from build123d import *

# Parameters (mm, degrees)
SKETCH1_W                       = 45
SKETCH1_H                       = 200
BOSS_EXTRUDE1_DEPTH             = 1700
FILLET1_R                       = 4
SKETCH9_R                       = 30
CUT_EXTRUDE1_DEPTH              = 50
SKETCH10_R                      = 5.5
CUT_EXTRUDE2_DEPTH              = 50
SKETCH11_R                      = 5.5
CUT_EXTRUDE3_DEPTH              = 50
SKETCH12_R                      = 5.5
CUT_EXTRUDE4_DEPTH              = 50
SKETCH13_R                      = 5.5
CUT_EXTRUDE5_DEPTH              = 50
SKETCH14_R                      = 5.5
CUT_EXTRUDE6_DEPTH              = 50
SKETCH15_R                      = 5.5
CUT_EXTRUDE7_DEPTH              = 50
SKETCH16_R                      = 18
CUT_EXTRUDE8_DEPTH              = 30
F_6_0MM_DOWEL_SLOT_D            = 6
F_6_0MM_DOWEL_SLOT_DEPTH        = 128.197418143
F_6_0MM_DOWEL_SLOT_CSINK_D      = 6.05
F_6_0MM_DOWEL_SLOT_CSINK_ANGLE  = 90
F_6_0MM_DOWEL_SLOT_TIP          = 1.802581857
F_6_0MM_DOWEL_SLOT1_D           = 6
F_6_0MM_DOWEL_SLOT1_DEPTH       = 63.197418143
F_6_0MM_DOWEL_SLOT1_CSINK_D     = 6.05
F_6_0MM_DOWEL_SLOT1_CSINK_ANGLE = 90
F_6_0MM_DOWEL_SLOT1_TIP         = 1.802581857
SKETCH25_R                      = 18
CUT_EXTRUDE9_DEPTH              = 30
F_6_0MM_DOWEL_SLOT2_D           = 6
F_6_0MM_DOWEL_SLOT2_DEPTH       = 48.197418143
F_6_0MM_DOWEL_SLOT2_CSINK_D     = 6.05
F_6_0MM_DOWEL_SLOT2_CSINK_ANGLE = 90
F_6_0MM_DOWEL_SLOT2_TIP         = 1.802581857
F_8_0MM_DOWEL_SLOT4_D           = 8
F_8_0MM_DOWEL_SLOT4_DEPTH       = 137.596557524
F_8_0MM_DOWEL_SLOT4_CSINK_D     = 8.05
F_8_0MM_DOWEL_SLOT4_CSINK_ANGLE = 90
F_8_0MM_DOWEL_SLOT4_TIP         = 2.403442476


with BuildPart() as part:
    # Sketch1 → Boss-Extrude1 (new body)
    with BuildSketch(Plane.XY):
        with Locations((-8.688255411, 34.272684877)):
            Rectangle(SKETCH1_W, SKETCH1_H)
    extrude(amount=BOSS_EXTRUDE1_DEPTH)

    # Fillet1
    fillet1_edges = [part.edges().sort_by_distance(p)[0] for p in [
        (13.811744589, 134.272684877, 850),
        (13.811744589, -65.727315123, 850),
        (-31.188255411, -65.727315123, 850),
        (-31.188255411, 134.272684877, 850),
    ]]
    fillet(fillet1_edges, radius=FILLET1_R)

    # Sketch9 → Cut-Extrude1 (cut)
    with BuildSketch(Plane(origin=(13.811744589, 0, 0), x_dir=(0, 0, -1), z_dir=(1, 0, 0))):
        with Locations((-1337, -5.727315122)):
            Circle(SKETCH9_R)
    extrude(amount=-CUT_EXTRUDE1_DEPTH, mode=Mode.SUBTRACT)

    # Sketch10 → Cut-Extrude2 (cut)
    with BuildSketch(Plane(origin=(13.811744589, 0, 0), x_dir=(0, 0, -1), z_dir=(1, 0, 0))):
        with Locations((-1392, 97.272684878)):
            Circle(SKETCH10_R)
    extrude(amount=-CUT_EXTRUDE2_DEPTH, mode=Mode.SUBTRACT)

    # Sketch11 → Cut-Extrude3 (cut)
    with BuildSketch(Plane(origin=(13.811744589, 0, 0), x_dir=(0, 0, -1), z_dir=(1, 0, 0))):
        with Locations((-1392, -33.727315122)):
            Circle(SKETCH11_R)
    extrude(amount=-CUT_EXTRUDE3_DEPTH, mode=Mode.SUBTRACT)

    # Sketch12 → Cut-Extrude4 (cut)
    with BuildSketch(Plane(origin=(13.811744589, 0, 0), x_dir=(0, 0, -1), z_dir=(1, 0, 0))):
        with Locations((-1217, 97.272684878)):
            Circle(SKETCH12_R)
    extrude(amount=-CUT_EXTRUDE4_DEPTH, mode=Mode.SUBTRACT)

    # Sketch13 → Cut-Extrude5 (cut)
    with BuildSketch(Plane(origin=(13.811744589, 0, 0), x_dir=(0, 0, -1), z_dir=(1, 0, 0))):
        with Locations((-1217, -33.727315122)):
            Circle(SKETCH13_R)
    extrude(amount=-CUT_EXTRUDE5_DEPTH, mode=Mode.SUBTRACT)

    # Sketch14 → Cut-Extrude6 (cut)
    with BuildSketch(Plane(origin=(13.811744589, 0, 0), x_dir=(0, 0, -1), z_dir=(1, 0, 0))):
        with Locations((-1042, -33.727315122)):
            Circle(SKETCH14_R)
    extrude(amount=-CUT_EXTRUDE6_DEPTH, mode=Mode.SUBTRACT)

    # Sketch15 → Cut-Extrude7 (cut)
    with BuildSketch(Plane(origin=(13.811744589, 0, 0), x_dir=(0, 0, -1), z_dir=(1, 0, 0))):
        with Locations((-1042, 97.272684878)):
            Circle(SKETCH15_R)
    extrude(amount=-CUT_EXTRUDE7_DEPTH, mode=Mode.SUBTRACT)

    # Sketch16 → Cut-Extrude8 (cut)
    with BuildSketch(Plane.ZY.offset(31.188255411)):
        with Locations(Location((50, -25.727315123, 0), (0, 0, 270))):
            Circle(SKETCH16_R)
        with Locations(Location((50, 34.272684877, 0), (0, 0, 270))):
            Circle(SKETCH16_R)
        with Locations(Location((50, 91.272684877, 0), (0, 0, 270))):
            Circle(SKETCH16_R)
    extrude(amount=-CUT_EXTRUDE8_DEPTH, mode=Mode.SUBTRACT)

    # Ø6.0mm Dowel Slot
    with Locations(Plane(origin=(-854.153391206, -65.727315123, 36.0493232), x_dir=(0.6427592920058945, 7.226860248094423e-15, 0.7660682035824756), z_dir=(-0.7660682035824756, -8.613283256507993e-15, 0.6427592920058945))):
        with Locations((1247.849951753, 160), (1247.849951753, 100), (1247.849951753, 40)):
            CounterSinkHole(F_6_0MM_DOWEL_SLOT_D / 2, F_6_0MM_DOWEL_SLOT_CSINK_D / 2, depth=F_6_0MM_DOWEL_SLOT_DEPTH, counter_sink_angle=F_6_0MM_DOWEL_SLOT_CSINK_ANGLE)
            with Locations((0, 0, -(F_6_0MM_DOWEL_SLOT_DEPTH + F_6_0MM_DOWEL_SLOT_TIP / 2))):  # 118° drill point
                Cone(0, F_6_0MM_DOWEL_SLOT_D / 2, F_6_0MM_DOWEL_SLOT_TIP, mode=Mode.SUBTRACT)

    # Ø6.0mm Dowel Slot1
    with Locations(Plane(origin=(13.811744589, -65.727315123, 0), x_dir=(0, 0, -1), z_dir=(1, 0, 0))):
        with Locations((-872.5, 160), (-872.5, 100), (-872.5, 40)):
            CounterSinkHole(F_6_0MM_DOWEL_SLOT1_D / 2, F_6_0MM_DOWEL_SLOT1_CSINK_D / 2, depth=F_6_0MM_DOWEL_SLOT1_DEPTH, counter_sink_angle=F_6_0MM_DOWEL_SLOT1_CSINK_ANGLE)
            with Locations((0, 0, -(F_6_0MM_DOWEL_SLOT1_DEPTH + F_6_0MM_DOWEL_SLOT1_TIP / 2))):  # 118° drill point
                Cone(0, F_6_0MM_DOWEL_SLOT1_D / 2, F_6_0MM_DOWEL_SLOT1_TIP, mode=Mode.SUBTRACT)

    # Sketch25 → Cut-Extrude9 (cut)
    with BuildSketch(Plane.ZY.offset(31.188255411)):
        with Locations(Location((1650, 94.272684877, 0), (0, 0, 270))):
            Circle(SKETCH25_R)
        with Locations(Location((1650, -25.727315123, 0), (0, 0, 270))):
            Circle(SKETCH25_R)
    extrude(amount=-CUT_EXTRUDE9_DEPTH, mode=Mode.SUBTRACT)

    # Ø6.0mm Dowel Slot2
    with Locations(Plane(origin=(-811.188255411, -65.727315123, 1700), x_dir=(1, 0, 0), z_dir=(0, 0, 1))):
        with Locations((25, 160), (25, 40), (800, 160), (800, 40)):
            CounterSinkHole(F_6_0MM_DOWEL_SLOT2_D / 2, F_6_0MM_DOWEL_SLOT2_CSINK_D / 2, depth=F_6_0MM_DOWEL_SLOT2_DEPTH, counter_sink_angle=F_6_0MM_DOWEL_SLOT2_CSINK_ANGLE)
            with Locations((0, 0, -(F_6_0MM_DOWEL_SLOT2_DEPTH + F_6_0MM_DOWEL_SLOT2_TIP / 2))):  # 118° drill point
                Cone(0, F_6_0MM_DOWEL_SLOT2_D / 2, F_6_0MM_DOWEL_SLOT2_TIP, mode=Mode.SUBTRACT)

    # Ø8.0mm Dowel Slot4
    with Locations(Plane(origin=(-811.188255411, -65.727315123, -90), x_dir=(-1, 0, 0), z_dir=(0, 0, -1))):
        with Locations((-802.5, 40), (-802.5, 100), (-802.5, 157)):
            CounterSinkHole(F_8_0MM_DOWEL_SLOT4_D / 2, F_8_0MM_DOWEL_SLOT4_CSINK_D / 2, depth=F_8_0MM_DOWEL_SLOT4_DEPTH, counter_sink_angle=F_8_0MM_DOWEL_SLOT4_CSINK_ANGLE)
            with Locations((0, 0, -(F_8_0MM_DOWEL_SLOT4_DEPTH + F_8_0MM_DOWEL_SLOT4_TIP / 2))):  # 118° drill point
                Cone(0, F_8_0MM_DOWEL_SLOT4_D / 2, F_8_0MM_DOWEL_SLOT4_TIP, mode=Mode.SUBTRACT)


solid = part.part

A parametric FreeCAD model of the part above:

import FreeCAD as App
import Part
import Sketcher
from FreeCAD import Vector
Q = App.Units.Quantity


def edges_at(feature, points):
    """Names of the edges that pass closest to the given points."""
    edges = feature.Shape.Edges
    near = lambda p: min(range(len(edges)), key=lambda i: edges[i].distToShape(Part.Vertex(*p))[0])
    return sorted({f"Edge{near(p) + 1}" for p in points})


def add_polygon(sketch, points):
    """Adds a closed chain of lines whose ends are joined by coincident constraints."""
    first, n = sketch.GeometryCount, len(points)
    for a, b in zip(points, points[1:] + points[:1]):
        sketch.addGeometry(Part.LineSegment(App.Vector(*a, 0), App.Vector(*b, 0)), False)
    for i in range(n):
        sketch.addConstraint(Sketcher.Constraint("Coincident", first + i, 2, first + (i + 1) % n, 1))

doc = App.newDocument("Part")
params = doc.addObject("Spreadsheet::Sheet", "Params")
for row, (alias, value) in enumerate([
    ("sketch1_width", "45 mm"),
    ("sketch1_height", "200 mm"),
    ("pad1_length", "1700 mm"),
    ("fillet_radius", "4 mm"),
    ("sketch2_diameter", "60 mm"),
    ("pocket1_length", "50 mm"),
    ("sketch3_diameter", "11 mm"),
    ("pocket2_length", "50 mm"),
    ("sketch4_diameter", "11 mm"),
    ("pocket3_length", "50 mm"),
    ("sketch5_diameter", "11 mm"),
    ("pocket4_length", "50 mm"),
    ("sketch6_diameter", "11 mm"),
    ("pocket5_length", "50 mm"),
    ("sketch7_diameter", "11 mm"),
    ("pocket6_length", "50 mm"),
    ("sketch8_diameter", "11 mm"),
    ("pocket7_length", "50 mm"),
    ("sketch9_diameter", "36 mm"),
    ("pocket8_length", "30 mm"),
    ("sketch10_diameter", "6 mm"),
    ("hole_diameter", "6 mm"),
    ("hole_depth", "128.197418 mm"),
    ("hole_csink_diameter", "6.05 mm"),
    ("sketch11_diameter", "6 mm"),
    ("hole2_diameter", "6 mm"),
    ("hole2_depth", "63.197418 mm"),
    ("hole2_csink_diameter", "6.05 mm"),
    ("sketch12_diameter", "36 mm"),
    ("pocket9_length", "30 mm"),
    ("sketch13_diameter", "6 mm"),
    ("hole3_diameter", "6 mm"),
    ("hole3_depth", "48.197418 mm"),
    ("hole3_csink_diameter", "6.05 mm"),
    ("sketch14_diameter", "8 mm"),
    ("hole4_diameter", "8 mm"),
    ("hole4_depth", "137.596558 mm"),
    ("hole4_csink_diameter", "8.05 mm"),
], start=1):
    params.set(f"A{row}", alias)
    params.set(f"B{row}", "=" + value)
    params.setAlias(f"B{row}", alias)

body = doc.addObject("PartDesign::Body", "Body")

sketch1 = body.newObject("Sketcher::SketchObject", "Sketch")
sketch1.AttachmentSupport = (doc.getObject("XY_Plane"), [""])
sketch1.MapMode = "FlatFace"
add_polygon(sketch1, [(-31, 134), (-31, -66), (14, -66), (14, 134)])
sketch1.addConstraint([
    Sketcher.Constraint("Vertical", 0),
    Sketcher.Constraint("Horizontal", 1),
    Sketcher.Constraint("Vertical", 2),
    Sketcher.Constraint("Horizontal", 3),
    Sketcher.Constraint("DistanceX", 1, 1, 1, 2, Q("45 mm")),
    Sketcher.Constraint("DistanceY", 0, 2, 0, 1, Q("200 mm")),
    Sketcher.Constraint("DistanceX", 0, 2, -1, 1, Q("31.188255 mm")),
    Sketcher.Constraint("DistanceY", 0, 2, -1, 1, Q("65.727315 mm")),
])
sketch1.setExpression("Constraints[8]", "Params.sketch1_width")
sketch1.setExpression("Constraints[9]", "Params.sketch1_height")
pad1 = body.newObject("PartDesign::Pad", "Pad")
pad1.Profile = sketch1
pad1.setExpression("Length", "Params.pad1_length")
doc.recompute()

fillet = body.newObject("PartDesign::Fillet", "Fillet")
fillet.Base = (pad1, edges_at(pad1, [
    (13.812, 134.273, 850),
    (13.812, -65.727, 850),
    (-31.188, -65.727, 850),
    (-31.188, 134.273, 850),
]))
fillet.setExpression("Radius", "Params.fillet_radius")

sketch2 = body.newObject("Sketcher::SketchObject", "Sketch001")
sketch2.AttachmentSupport = (doc.getObject("YZ_Plane"), [""])
sketch2.MapMode = "FlatFace"
sketch2.AttachmentOffset = App.Placement(Vector(0, 0, 13.811745), App.Rotation())
sketch2.addGeometry(Part.Circle(Vector(-6, 1337, 0), Vector(0, 0, 1), 30), False)
sketch2.addConstraint([
    Sketcher.Constraint("Diameter", 0, Q("60 mm")),
    Sketcher.Constraint("DistanceY", -1, 1, 0, 3, Q("1337 mm")),
    Sketcher.Constraint("DistanceX", 0, 3, -1, 1, Q("5.727315 mm")),
])
sketch2.setExpression("Constraints[0]", "Params.sketch2_diameter")
pocket1 = body.newObject("PartDesign::Pocket", "Pocket")
pocket1.Profile = sketch2
pocket1.setExpression("Length", "Params.pocket1_length")

sketch3 = body.newObject("Sketcher::SketchObject", "Sketch002")
sketch3.AttachmentSupport = (doc.getObject("YZ_Plane"), [""])
sketch3.MapMode = "FlatFace"
sketch3.AttachmentOffset = App.Placement(Vector(0, 0, 13.811745), App.Rotation())
sketch3.addGeometry(Part.Circle(Vector(97, 1392, 0), Vector(0, 0, 1), 6), False)
sketch3.addConstraint([
    Sketcher.Constraint("Diameter", 0, Q("11 mm")),
    Sketcher.Constraint("DistanceY", -1, 1, 0, 3, Q("1392 mm")),
    Sketcher.Constraint("DistanceX", -1, 1, 0, 3, Q("97.272685 mm")),
])
sketch3.setExpression("Constraints[0]", "Params.sketch3_diameter")
pocket2 = body.newObject("PartDesign::Pocket", "Pocket001")
pocket2.Profile = sketch3
pocket2.setExpression("Length", "Params.pocket2_length")

sketch4 = body.newObject("Sketcher::SketchObject", "Sketch003")
sketch4.AttachmentSupport = (doc.getObject("YZ_Plane"), [""])
sketch4.MapMode = "FlatFace"
sketch4.AttachmentOffset = App.Placement(Vector(0, 0, 13.811745), App.Rotation())
sketch4.addGeometry(Part.Circle(Vector(-34, 1392, 0), Vector(0, 0, 1), 6), False)
sketch4.addConstraint([
    Sketcher.Constraint("Diameter", 0, Q("11 mm")),
    Sketcher.Constraint("DistanceY", -1, 1, 0, 3, Q("1392 mm")),
    Sketcher.Constraint("DistanceX", 0, 3, -1, 1, Q("33.727315 mm")),
])
sketch4.setExpression("Constraints[0]", "Params.sketch4_diameter")
pocket3 = body.newObject("PartDesign::Pocket", "Pocket002")
pocket3.Profile = sketch4
pocket3.setExpression("Length", "Params.pocket3_length")

sketch5 = body.newObject("Sketcher::SketchObject", "Sketch004")
sketch5.AttachmentSupport = (doc.getObject("YZ_Plane"), [""])
sketch5.MapMode = "FlatFace"
sketch5.AttachmentOffset = App.Placement(Vector(0, 0, 13.811745), App.Rotation())
sketch5.addGeometry(Part.Circle(Vector(97, 1217, 0), Vector(0, 0, 1), 6), False)
sketch5.addConstraint([
    Sketcher.Constraint("Diameter", 0, Q("11 mm")),
    Sketcher.Constraint("DistanceY", -1, 1, 0, 3, Q("1217 mm")),
    Sketcher.Constraint("DistanceX", -1, 1, 0, 3, Q("97.272685 mm")),
])
sketch5.setExpression("Constraints[0]", "Params.sketch5_diameter")
pocket4 = body.newObject("PartDesign::Pocket", "Pocket003")
pocket4.Profile = sketch5
pocket4.setExpression("Length", "Params.pocket4_length")

sketch6 = body.newObject("Sketcher::SketchObject", "Sketch005")
sketch6.AttachmentSupport = (doc.getObject("YZ_Plane"), [""])
sketch6.MapMode = "FlatFace"
sketch6.AttachmentOffset = App.Placement(Vector(0, 0, 13.811745), App.Rotation())
sketch6.addGeometry(Part.Circle(Vector(-34, 1217, 0), Vector(0, 0, 1), 6), False)
sketch6.addConstraint([
    Sketcher.Constraint("Diameter", 0, Q("11 mm")),
    Sketcher.Constraint("DistanceY", -1, 1, 0, 3, Q("1217 mm")),
    Sketcher.Constraint("DistanceX", 0, 3, -1, 1, Q("33.727315 mm")),
])
sketch6.setExpression("Constraints[0]", "Params.sketch6_diameter")
pocket5 = body.newObject("PartDesign::Pocket", "Pocket004")
pocket5.Profile = sketch6
pocket5.setExpression("Length", "Params.pocket5_length")

sketch7 = body.newObject("Sketcher::SketchObject", "Sketch006")
sketch7.AttachmentSupport = (doc.getObject("YZ_Plane"), [""])
sketch7.MapMode = "FlatFace"
sketch7.AttachmentOffset = App.Placement(Vector(0, 0, 13.811745), App.Rotation())
sketch7.addGeometry(Part.Circle(Vector(-34, 1042, 0), Vector(0, 0, 1), 6), False)
sketch7.addConstraint([
    Sketcher.Constraint("Diameter", 0, Q("11 mm")),
    Sketcher.Constraint("DistanceY", -1, 1, 0, 3, Q("1042 mm")),
    Sketcher.Constraint("DistanceX", 0, 3, -1, 1, Q("33.727315 mm")),
])
sketch7.setExpression("Constraints[0]", "Params.sketch7_diameter")
pocket6 = body.newObject("PartDesign::Pocket", "Pocket005")
pocket6.Profile = sketch7
pocket6.setExpression("Length", "Params.pocket6_length")

sketch8 = body.newObject("Sketcher::SketchObject", "Sketch007")
sketch8.AttachmentSupport = (doc.getObject("YZ_Plane"), [""])
sketch8.MapMode = "FlatFace"
sketch8.AttachmentOffset = App.Placement(Vector(0, 0, 13.811745), App.Rotation())
sketch8.addGeometry(Part.Circle(Vector(97, 1042, 0), Vector(0, 0, 1), 6), False)
sketch8.addConstraint([
    Sketcher.Constraint("Diameter", 0, Q("11 mm")),
    Sketcher.Constraint("DistanceY", -1, 1, 0, 3, Q("1042 mm")),
    Sketcher.Constraint("DistanceX", -1, 1, 0, 3, Q("97.272685 mm")),
])
sketch8.setExpression("Constraints[0]", "Params.sketch8_diameter")
pocket7 = body.newObject("PartDesign::Pocket", "Pocket006")
pocket7.Profile = sketch8
pocket7.setExpression("Length", "Params.pocket7_length")

sketch9 = body.newObject("Sketcher::SketchObject", "Sketch008")
sketch9.AttachmentSupport = (doc.getObject("YZ_Plane"), [""])
sketch9.MapMode = "FlatFace"
sketch9.AttachmentOffset = App.Placement(Vector(0, 0, -31.188255), App.Rotation())
sketch9.addGeometry([
    Part.Circle(Vector(-26, 50, 0), Vector(0, 0, 1), 18),
    Part.Circle(Vector(34, 50, 0), Vector(0, 0, 1), 18),
    Part.Circle(Vector(91, 50, 0), Vector(0, 0, 1), 18),
], False)
sketch9.addConstraint([
    Sketcher.Constraint("Equal", 0, 1),
    Sketcher.Constraint("Equal", 1, 2),
    Sketcher.Constraint("Horizontal", 0, 3, 1, 3),
    Sketcher.Constraint("Horizontal", 1, 3, 2, 3),
    Sketcher.Constraint("Diameter", 0, Q("36 mm")),
    Sketcher.Constraint("DistanceY", -1, 1, 0, 3, Q("50 mm")),
    Sketcher.Constraint("DistanceX", 0, 3, 1, 3, Q("60 mm")),
    Sketcher.Constraint("DistanceX", 1, 3, 2, 3, Q("57 mm")),
    Sketcher.Constraint("DistanceX", 0, 3, -1, 1, Q("25.727315 mm")),
])
sketch9.setExpression("Constraints[4]", "Params.sketch9_diameter")
pocket8 = body.newObject("PartDesign::Pocket", "Pocket007")
pocket8.Profile = sketch9
pocket8.setExpression("Length", "Params.pocket8_length")
pocket8.Reversed = True

sketch10 = body.newObject("Sketcher::SketchObject", "Sketch009")
sketch10.Placement = App.Placement(Vector(-519.019475, 0, 435.476357), App.Rotation(Vector(0.642759292, 0, 0.766068204), Vector(0, 1.000000001, 0), Vector(-0.766068204, 0, 0.642759292), "ZXY"))
sketch10.addGeometry([
    Part.Circle(Vector(726.5, 94.3, 0), Vector(0, 0, 1), 3),
    Part.Circle(Vector(726.5, 34.3, 0), Vector(0, 0, 1), 3),
    Part.Circle(Vector(726.5, -25.7, 0), Vector(0, 0, 1), 3),
], False)
sketch10.addConstraint([
    Sketcher.Constraint("Equal", 0, 1),
    Sketcher.Constraint("Equal", 1, 2),
    Sketcher.Constraint("Vertical", 0, 3, 1, 3),
    Sketcher.Constraint("Vertical", 1, 3, 2, 3),
    Sketcher.Constraint("Diameter", 0, Q("6 mm")),
    Sketcher.Constraint("DistanceY", 1, 3, 0, 3, Q("60 mm")),
    Sketcher.Constraint("DistanceY", 2, 3, 1, 3, Q("60 mm")),
    Sketcher.Constraint("DistanceX", -1, 1, 0, 3, Q("726.451163 mm")),
    Sketcher.Constraint("DistanceY", -1, 1, 0, 3, Q("94.272685 mm")),
])
sketch10.setExpression("Constraints[4]", "Params.sketch10_diameter")
doc.recompute()
hole = body.newObject("PartDesign::Hole", "Hole")
hole.Profile = sketch10
hole.ThreadType = "None"
hole.setExpression("Diameter", "Params.hole_diameter")
hole.DepthType = "Dimension"
hole.setExpression("Depth", "Params.hole_depth")
hole.DrillPoint = "Angled"
hole.DrillPointAngle = 118
hole.HoleCutType = "Countersink"
hole.setExpression("HoleCutDiameter", "Params.hole_csink_diameter")
hole.HoleCutCountersinkAngle = 90

sketch11 = body.newObject("Sketcher::SketchObject", "Sketch010")
sketch11.AttachmentSupport = (doc.getObject("YZ_Plane"), [""])
sketch11.MapMode = "FlatFace"
sketch11.AttachmentOffset = App.Placement(Vector(0, 0, 13.811745), App.Rotation())
sketch11.addGeometry([
    Part.Circle(Vector(94.3, 872.5, 0), Vector(0, 0, 1), 3),
    Part.Circle(Vector(34.3, 872.5, 0), Vector(0, 0, 1), 3),
    Part.Circle(Vector(-25.7, 872.5, 0), Vector(0, 0, 1), 3),
], False)
sketch11.addConstraint([
    Sketcher.Constraint("Equal", 0, 1),
    Sketcher.Constraint("Equal", 1, 2),
    Sketcher.Constraint("Horizontal", 0, 3, 1, 3),
    Sketcher.Constraint("Horizontal", 1, 3, 2, 3),
    Sketcher.Constraint("Diameter", 0, Q("6 mm")),
    Sketcher.Constraint("DistanceX", 1, 3, 0, 3, Q("60 mm")),
    Sketcher.Constraint("DistanceX", 2, 3, 1, 3, Q("60 mm")),
    Sketcher.Constraint("DistanceY", -1, 1, 0, 3, Q("872.5 mm")),
    Sketcher.Constraint("DistanceX", -1, 1, 0, 3, Q("94.272685 mm")),
])
sketch11.setExpression("Constraints[4]", "Params.sketch11_diameter")
doc.recompute()
hole2 = body.newObject("PartDesign::Hole", "Hole001")
hole2.Profile = sketch11
hole2.ThreadType = "None"
hole2.setExpression("Diameter", "Params.hole2_diameter")
hole2.DepthType = "Dimension"
hole2.setExpression("Depth", "Params.hole2_depth")
hole2.DrillPoint = "Angled"
hole2.DrillPointAngle = 118
hole2.HoleCutType = "Countersink"
hole2.setExpression("HoleCutDiameter", "Params.hole2_csink_diameter")
hole2.HoleCutCountersinkAngle = 90

sketch12 = body.newObject("Sketcher::SketchObject", "Sketch011")
sketch12.AttachmentSupport = (doc.getObject("YZ_Plane"), [""])
sketch12.MapMode = "FlatFace"
sketch12.AttachmentOffset = App.Placement(Vector(0, 0, -31.188255), App.Rotation())
sketch12.addGeometry([
    Part.Circle(Vector(94, 1650, 0), Vector(0, 0, 1), 18),
    Part.Circle(Vector(-26, 1650, 0), Vector(0, 0, 1), 18),
], False)
sketch12.addConstraint([
    Sketcher.Constraint("Equal", 0, 1),
    Sketcher.Constraint("Horizontal", 0, 3, 1, 3),
    Sketcher.Constraint("Diameter", 0, Q("36 mm")),
    Sketcher.Constraint("DistanceY", -1, 1, 0, 3, Q("1650 mm")),
    Sketcher.Constraint("DistanceX", 1, 3, 0, 3, Q("120 mm")),
    Sketcher.Constraint("DistanceX", -1, 1, 0, 3, Q("94.272685 mm")),
])
sketch12.setExpression("Constraints[2]", "Params.sketch12_diameter")
pocket9 = body.newObject("PartDesign::Pocket", "Pocket008")
pocket9.Profile = sketch12
pocket9.setExpression("Length", "Params.pocket9_length")
pocket9.Reversed = True

sketch13 = body.newObject("Sketcher::SketchObject", "Sketch012")
sketch13.AttachmentSupport = (doc.getObject("XY_Plane"), [""])
sketch13.MapMode = "FlatFace"
sketch13.AttachmentOffset = App.Placement(Vector(0, 0, 1700), App.Rotation())
sketch13.addGeometry([
    Part.Circle(Vector(-786.2, 94.3, 0), Vector(0, 0, 1), 3),
    Part.Circle(Vector(-786.2, -25.7, 0), Vector(0, 0, 1), 3),
    Part.Circle(Vector(-11.2, 94.3, 0), Vector(0, 0, 1), 3),
    Part.Circle(Vector(-11.2, -25.7, 0), Vector(0, 0, 1), 3),
], False)
sketch13.addConstraint([
    Sketcher.Constraint("Equal", 0, 1),
    Sketcher.Constraint("Equal", 1, 2),
    Sketcher.Constraint("Equal", 2, 3),
    Sketcher.Constraint("Horizontal", 0, 3, 2, 3),
    Sketcher.Constraint("Horizontal", 1, 3, 3, 3),
    Sketcher.Constraint("Vertical", 0, 3, 1, 3),
    Sketcher.Constraint("Vertical", 2, 3, 3, 3),
    Sketcher.Constraint("Diameter", 0, Q("6 mm")),
    Sketcher.Constraint("DistanceY", 1, 3, 0, 3, Q("120 mm")),
    Sketcher.Constraint("DistanceX", 0, 3, 2, 3, Q("775 mm")),
    Sketcher.Constraint("DistanceX", 0, 3, -1, 1, Q("786.188255 mm")),
    Sketcher.Constraint("DistanceY", -1, 1, 0, 3, Q("94.272685 mm")),
])
sketch13.setExpression("Constraints[7]", "Params.sketch13_diameter")
doc.recompute()
hole3 = body.newObject("PartDesign::Hole", "Hole002")
hole3.Profile = sketch13
hole3.ThreadType = "None"
hole3.setExpression("Diameter", "Params.hole3_diameter")
hole3.DepthType = "Dimension"
hole3.setExpression("Depth", "Params.hole3_depth")
hole3.DrillPoint = "Angled"
hole3.DrillPointAngle = 118
hole3.HoleCutType = "Countersink"
hole3.setExpression("HoleCutDiameter", "Params.hole3_csink_diameter")
hole3.HoleCutCountersinkAngle = 90

sketch14 = body.newObject("Sketcher::SketchObject", "Sketch013")
sketch14.AttachmentSupport = (doc.getObject("XY_Plane"), [""])
sketch14.MapMode = "FlatFace"
sketch14.AttachmentOffset = App.Placement(Vector(0, 0, -90), App.Rotation())
sketch14.addGeometry([
    Part.Circle(Vector(-8.7, -25.7, 0), Vector(0, 0, 1), 4),
    Part.Circle(Vector(-8.7, 34.3, 0), Vector(0, 0, 1), 4),
    Part.Circle(Vector(-8.7, 91.3, 0), Vector(0, 0, 1), 4),
], False)
sketch14.addConstraint([
    Sketcher.Constraint("Equal", 0, 1),
    Sketcher.Constraint("Equal", 1, 2),
    Sketcher.Constraint("Vertical", 0, 3, 1, 3),
    Sketcher.Constraint("Vertical", 1, 3, 2, 3),
    Sketcher.Constraint("Diameter", 0, Q("8 mm")),
    Sketcher.Constraint("DistanceY", 0, 3, 1, 3, Q("60 mm")),
    Sketcher.Constraint("DistanceY", 1, 3, 2, 3, Q("57 mm")),
    Sketcher.Constraint("DistanceX", 0, 3, -1, 1, Q("8.688255 mm")),
    Sketcher.Constraint("DistanceY", 0, 3, -1, 1, Q("25.727315 mm")),
])
sketch14.setExpression("Constraints[4]", "Params.sketch14_diameter")
doc.recompute()
hole4 = body.newObject("PartDesign::Hole", "Hole003")
hole4.Profile = sketch14
hole4.ThreadType = "None"
hole4.setExpression("Diameter", "Params.hole4_diameter")
hole4.DepthType = "Dimension"
hole4.setExpression("Depth", "Params.hole4_depth")
hole4.DrillPoint = "Angled"
hole4.DrillPointAngle = 118
hole4.HoleCutType = "Countersink"
hole4.setExpression("HoleCutDiameter", "Params.hole4_csink_diameter")
hole4.HoleCutCountersinkAngle = 90
hole4.Reversed = True

doc.recompute()
